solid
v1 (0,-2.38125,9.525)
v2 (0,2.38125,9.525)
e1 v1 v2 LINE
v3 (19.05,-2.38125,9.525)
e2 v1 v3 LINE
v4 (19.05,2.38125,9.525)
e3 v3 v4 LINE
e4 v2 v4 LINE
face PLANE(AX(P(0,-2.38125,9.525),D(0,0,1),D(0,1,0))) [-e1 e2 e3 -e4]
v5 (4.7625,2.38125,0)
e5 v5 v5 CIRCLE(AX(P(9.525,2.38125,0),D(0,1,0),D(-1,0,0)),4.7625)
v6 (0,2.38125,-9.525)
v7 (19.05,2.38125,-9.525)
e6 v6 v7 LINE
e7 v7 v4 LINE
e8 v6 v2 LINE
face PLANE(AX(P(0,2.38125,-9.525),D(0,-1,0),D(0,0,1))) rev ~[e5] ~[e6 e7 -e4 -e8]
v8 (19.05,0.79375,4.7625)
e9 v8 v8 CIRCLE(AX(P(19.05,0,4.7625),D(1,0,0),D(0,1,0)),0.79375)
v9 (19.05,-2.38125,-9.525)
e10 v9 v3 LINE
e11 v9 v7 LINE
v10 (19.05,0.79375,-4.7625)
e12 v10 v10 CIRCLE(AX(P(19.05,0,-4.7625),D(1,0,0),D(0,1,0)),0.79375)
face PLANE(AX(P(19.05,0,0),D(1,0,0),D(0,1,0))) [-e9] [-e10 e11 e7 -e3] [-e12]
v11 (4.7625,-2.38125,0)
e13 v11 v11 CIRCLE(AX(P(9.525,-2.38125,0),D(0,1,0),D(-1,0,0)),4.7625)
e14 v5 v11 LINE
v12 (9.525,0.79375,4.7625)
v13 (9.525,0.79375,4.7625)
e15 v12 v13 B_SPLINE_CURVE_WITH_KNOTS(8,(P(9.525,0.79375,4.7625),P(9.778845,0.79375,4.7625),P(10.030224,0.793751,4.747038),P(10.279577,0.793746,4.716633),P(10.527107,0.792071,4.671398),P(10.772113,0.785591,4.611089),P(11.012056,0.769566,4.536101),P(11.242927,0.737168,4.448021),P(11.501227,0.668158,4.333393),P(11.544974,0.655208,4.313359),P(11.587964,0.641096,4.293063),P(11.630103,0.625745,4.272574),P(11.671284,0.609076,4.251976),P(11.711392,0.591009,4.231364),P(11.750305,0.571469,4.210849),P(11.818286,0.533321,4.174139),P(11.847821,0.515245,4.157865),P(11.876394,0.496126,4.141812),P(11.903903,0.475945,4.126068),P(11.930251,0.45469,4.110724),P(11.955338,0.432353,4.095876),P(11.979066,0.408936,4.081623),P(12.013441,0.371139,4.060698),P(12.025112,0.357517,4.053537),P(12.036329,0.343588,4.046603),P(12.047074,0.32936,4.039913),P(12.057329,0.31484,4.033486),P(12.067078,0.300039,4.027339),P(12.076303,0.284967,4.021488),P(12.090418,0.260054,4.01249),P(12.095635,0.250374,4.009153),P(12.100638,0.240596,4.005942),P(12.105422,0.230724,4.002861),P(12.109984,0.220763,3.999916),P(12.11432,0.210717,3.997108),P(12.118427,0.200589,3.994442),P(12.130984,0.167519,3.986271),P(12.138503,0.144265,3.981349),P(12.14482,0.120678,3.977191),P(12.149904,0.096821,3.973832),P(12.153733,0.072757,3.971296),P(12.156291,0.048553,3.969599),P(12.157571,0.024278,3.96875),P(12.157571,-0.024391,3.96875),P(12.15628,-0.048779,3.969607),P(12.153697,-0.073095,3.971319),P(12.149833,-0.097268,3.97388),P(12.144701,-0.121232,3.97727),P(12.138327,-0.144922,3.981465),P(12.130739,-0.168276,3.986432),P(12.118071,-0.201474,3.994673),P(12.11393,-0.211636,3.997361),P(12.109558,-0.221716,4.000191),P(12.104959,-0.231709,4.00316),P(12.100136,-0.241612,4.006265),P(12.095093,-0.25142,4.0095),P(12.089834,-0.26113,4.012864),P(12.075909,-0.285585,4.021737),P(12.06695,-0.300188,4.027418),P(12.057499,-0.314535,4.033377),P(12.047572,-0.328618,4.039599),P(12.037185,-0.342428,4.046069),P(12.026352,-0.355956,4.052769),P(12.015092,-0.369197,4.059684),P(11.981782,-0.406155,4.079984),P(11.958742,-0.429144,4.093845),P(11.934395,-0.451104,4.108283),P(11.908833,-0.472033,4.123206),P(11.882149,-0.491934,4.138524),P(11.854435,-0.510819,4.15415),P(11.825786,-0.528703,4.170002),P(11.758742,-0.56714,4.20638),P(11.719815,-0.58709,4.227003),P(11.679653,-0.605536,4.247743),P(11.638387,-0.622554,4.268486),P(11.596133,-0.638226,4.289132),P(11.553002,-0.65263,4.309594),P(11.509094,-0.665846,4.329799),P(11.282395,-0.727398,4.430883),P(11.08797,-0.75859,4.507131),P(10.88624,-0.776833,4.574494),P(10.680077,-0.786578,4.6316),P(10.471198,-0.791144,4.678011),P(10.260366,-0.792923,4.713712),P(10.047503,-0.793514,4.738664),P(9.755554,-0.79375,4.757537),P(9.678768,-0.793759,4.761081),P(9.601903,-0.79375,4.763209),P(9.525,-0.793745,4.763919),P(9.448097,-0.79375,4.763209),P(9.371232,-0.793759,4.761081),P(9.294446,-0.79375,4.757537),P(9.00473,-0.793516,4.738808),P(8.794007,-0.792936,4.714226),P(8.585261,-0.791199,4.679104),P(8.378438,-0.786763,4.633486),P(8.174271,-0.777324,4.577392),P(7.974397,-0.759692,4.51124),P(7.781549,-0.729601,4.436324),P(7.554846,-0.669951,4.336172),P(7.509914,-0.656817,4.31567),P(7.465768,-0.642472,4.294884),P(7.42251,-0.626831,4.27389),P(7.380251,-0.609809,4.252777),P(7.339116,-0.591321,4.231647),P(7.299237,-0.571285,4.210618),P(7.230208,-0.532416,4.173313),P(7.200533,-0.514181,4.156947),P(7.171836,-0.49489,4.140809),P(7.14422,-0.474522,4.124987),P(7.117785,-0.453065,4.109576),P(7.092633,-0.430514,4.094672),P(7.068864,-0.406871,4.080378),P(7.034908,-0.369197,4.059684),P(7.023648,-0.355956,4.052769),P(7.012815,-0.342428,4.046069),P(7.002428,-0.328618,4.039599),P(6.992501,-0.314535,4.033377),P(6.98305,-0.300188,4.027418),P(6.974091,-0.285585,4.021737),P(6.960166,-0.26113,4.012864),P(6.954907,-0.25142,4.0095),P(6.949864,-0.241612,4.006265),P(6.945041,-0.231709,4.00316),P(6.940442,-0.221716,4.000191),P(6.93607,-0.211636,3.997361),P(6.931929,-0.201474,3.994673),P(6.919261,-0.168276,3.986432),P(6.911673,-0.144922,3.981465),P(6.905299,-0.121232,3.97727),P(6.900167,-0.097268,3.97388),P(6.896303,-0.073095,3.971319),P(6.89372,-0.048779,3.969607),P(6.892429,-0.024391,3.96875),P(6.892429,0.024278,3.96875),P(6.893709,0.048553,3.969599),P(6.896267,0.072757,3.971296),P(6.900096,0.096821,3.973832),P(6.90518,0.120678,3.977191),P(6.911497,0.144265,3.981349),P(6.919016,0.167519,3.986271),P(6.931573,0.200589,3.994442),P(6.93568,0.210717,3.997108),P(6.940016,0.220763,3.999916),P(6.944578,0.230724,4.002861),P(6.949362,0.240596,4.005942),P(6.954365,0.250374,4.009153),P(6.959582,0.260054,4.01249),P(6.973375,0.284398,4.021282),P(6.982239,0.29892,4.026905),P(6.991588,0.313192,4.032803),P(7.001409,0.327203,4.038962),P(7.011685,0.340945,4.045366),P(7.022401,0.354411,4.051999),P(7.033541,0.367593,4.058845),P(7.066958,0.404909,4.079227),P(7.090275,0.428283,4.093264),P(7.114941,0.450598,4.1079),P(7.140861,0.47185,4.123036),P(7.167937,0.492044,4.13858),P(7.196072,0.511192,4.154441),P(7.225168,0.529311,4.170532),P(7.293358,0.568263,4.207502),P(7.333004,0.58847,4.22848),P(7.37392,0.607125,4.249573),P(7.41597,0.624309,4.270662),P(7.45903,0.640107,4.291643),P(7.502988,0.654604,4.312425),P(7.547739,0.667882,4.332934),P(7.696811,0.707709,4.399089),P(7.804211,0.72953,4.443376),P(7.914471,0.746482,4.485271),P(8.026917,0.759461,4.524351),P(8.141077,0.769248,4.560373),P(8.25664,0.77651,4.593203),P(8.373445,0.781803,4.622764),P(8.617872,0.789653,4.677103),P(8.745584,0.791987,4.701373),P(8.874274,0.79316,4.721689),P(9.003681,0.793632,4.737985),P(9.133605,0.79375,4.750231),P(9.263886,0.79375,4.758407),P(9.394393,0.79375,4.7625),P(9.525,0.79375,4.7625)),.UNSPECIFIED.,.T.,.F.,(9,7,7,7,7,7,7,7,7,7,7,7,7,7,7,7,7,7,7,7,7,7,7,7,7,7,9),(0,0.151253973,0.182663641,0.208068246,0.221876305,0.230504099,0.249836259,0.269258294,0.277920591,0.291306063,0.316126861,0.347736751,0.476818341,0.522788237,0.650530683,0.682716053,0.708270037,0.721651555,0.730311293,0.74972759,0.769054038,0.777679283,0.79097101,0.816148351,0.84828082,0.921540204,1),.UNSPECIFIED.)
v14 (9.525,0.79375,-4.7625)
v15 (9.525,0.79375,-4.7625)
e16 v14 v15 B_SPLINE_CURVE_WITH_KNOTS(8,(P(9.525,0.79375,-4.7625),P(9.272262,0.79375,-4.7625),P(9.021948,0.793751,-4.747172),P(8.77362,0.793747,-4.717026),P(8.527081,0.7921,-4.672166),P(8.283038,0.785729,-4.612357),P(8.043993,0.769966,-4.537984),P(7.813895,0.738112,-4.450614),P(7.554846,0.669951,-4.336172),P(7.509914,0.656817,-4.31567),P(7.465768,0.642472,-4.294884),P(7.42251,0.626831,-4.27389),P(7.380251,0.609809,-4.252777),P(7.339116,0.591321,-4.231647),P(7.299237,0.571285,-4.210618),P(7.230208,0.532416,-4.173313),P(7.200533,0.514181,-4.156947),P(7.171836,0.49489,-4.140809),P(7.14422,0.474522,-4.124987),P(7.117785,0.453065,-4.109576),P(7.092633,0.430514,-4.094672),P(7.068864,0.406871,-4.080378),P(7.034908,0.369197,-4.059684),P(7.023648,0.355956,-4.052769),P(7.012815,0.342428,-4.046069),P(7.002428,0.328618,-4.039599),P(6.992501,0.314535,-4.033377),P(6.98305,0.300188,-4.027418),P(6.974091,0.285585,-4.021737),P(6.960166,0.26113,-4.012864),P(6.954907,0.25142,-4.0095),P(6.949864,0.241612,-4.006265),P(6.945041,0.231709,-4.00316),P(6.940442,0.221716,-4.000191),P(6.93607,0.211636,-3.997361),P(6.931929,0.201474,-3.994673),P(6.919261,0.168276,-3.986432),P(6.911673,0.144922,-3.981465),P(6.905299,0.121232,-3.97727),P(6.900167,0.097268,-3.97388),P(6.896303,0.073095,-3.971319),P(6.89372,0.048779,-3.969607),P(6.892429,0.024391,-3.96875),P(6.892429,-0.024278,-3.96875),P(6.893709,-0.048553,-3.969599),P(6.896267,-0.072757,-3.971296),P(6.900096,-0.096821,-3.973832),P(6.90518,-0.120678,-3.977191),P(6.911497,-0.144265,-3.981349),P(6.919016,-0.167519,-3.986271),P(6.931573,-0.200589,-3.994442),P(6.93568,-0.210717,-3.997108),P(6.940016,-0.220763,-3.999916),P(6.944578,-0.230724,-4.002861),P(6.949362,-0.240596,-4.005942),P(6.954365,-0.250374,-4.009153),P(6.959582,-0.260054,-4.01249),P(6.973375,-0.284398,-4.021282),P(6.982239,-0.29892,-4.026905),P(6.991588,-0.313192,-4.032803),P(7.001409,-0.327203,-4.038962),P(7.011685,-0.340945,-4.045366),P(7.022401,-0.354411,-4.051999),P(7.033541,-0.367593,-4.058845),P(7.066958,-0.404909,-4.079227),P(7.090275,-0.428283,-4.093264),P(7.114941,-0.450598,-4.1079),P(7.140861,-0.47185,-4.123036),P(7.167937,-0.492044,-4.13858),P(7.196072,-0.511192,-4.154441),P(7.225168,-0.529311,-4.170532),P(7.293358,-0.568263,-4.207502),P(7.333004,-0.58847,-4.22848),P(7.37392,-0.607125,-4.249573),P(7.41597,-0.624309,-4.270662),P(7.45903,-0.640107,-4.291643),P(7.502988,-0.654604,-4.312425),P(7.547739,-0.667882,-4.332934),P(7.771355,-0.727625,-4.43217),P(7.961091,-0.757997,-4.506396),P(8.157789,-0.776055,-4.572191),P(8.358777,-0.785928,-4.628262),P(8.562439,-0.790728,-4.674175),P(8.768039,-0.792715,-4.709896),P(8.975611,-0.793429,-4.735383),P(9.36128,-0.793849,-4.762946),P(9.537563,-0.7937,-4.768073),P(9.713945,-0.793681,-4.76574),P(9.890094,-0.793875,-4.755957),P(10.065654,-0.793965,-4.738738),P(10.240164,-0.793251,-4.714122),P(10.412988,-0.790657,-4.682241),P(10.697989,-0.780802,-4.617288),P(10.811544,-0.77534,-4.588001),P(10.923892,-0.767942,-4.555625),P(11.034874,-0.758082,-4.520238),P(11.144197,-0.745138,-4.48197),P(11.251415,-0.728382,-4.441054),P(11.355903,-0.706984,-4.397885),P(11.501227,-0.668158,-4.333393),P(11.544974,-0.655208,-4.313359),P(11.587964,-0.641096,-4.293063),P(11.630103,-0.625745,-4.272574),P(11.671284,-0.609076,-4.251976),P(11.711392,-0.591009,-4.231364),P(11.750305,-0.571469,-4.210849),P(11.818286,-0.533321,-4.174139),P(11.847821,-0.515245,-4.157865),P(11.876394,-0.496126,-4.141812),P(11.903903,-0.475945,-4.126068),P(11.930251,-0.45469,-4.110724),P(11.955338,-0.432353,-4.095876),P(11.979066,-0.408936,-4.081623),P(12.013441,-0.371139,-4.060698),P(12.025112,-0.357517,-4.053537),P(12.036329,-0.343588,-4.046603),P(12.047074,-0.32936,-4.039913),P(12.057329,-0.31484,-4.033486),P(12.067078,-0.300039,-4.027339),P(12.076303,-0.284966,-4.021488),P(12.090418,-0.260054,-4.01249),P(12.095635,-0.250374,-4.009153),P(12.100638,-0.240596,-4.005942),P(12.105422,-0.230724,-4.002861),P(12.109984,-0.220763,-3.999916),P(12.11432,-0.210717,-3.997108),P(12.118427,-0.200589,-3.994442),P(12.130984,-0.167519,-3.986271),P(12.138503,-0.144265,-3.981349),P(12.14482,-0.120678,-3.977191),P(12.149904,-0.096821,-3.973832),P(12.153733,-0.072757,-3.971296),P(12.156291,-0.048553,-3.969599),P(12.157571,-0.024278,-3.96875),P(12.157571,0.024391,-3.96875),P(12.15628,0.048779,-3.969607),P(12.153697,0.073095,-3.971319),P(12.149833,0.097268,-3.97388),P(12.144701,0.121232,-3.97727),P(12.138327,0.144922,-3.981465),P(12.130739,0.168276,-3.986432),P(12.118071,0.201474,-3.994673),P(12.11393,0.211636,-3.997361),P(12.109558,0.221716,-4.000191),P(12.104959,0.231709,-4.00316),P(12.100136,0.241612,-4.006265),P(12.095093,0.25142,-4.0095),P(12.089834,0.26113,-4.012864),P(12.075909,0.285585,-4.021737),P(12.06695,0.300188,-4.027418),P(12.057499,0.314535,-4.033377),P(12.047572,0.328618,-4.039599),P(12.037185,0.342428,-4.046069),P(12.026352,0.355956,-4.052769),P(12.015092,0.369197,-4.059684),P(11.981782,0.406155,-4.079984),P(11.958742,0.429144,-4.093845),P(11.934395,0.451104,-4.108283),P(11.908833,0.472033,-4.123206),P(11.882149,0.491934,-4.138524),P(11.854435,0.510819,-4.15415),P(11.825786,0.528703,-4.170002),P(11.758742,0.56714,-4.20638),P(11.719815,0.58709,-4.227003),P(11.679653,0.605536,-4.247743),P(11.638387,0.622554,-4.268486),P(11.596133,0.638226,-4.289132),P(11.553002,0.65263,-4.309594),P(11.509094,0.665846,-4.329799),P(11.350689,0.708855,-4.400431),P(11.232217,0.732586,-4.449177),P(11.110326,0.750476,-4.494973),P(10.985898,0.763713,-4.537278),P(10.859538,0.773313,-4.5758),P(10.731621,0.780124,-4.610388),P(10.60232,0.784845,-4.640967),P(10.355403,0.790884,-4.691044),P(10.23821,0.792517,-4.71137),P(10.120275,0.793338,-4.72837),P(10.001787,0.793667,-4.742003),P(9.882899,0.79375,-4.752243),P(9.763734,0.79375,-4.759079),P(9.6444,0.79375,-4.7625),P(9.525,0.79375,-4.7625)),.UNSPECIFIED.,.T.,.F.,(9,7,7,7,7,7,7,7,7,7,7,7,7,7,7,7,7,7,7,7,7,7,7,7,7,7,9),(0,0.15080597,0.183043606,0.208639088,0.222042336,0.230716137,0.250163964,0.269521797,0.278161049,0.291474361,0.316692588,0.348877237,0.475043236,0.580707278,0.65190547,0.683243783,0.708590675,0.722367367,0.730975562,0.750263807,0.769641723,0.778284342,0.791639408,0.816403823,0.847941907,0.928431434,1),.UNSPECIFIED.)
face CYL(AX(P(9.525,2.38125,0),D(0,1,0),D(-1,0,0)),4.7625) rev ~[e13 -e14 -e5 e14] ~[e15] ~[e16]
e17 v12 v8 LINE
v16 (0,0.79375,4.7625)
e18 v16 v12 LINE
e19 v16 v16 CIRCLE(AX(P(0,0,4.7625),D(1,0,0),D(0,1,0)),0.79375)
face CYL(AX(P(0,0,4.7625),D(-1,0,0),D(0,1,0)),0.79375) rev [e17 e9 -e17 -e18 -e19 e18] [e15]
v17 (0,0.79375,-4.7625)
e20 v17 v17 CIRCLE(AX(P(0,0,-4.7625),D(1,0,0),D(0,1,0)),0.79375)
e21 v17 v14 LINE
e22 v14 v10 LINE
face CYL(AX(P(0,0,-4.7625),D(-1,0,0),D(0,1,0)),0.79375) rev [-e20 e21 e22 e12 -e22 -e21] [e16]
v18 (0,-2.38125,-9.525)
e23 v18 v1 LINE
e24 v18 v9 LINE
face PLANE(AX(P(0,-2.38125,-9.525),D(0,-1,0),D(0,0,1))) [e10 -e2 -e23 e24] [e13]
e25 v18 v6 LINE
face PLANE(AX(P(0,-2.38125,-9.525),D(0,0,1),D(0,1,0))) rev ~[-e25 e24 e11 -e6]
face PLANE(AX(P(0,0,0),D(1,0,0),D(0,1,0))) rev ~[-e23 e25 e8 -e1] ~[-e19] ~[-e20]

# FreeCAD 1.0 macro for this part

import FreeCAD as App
import Part
import Sketcher

V = App.Vector
Q = App.Units.Quantity


def add_polygon(sketch, points):
    """Adds a closed chain of lines whose ends are joined by coincident constraints."""
    first, n = sketch.GeometryCount, len(points)
    for a, b in zip(points, points[1:] + points[:1]):
        sketch.addGeometry(Part.LineSegment(App.Vector(*a, 0), App.Vector(*b, 0)), False)
    for i in range(n):
        sketch.addConstraint(Sketcher.Constraint("Coincident", first + i, 2, first + (i + 1) % n, 1))

doc = App.newDocument("Part")
body = doc.addObject("PartDesign::Body", "Body")

sketch1 = body.newObject("Sketcher::SketchObject", "Sketch")
sketch1.AttachmentSupport = (doc.getObject("YZ_Plane"), [""])
sketch1.MapMode = "FlatFace"
add_polygon(sketch1, [(-2.4, 9.5), (-2.4, -9.5), (2.4, -9.5), (2.4, 9.5)])
sketch1.addGeometry(Part.Circle(V(0, -4.8, 0), V(0, 0, 1), 0.8), False)
sketch1.addGeometry(Part.Circle(V(0, 4.8, 0), V(0, 0, 1), 0.8), False)
sketch1.addConstraint(Sketcher.Constraint("Vertical", 0))
sketch1.addConstraint(Sketcher.Constraint("Horizontal", 1))
sketch1.addConstraint(Sketcher.Constraint("Vertical", 2))
sketch1.addConstraint(Sketcher.Constraint("Horizontal", 3))
sketch1.addConstraint(Sketcher.Constraint("Equal", 4, 5))
sketch1.addConstraint(Sketcher.Constraint("Symmetric", 4, 3, 5, 3, -1, 1))
sketch1.addConstraint(Sketcher.Constraint("Symmetric", 0, 2, 2, 2, -1, 1))
sketch1.addConstraint(Sketcher.Constraint("PointOnObject", 4, 3, -2))
sketch1.addConstraint(Sketcher.Constraint("Diameter", 4, Q("0.0625 in")))
sketch1.addConstraint(Sketcher.Constraint("DistanceY", 0, 2, 0, 1, Q("0.75 in")))
sketch1.addConstraint(Sketcher.Constraint("DistanceX", 1, 1, 1, 2, Q("0.1875 in")))
sketch1.addConstraint(Sketcher.Constraint("DistanceY", 4, 3, -1, 1, Q("0.1875 in")))
pad1 = body.newObject("PartDesign::Pad", "Pad")
pad1.Profile = sketch1
pad1.Length = Q("0.75 in")

sketch2 = body.newObject("Sketcher::SketchObject", "Sketch001")
sketch2.AttachmentSupport = (doc.getObject("XZ_Plane"), [""])
sketch2.MapMode = "FlatFace"
sketch2.AttachmentOffset = App.Placement(V(0, 0, -0.09375 * 25.4), App.Rotation())
sketch2.addGeometry(Part.Circle(V(9.5, 0, 0), V(0, 0, 1), 4.8), False)
sketch2.addConstraint(Sketcher.Constraint("PointOnObject", 0, 3, -1))
sketch2.addConstraint(Sketcher.Constraint("Diameter", 0, Q("0.375 in")))
sketch2.addConstraint(Sketcher.Constraint("DistanceX", -1, 1, 0, 3, Q("0.375 in")))
pocket1 = body.newObject("PartDesign::Pocket", "Pocket")
pocket1.Profile = sketch2
pocket1.Length = Q("1 in")
pocket1.Reversed = True

doc.recompute()
